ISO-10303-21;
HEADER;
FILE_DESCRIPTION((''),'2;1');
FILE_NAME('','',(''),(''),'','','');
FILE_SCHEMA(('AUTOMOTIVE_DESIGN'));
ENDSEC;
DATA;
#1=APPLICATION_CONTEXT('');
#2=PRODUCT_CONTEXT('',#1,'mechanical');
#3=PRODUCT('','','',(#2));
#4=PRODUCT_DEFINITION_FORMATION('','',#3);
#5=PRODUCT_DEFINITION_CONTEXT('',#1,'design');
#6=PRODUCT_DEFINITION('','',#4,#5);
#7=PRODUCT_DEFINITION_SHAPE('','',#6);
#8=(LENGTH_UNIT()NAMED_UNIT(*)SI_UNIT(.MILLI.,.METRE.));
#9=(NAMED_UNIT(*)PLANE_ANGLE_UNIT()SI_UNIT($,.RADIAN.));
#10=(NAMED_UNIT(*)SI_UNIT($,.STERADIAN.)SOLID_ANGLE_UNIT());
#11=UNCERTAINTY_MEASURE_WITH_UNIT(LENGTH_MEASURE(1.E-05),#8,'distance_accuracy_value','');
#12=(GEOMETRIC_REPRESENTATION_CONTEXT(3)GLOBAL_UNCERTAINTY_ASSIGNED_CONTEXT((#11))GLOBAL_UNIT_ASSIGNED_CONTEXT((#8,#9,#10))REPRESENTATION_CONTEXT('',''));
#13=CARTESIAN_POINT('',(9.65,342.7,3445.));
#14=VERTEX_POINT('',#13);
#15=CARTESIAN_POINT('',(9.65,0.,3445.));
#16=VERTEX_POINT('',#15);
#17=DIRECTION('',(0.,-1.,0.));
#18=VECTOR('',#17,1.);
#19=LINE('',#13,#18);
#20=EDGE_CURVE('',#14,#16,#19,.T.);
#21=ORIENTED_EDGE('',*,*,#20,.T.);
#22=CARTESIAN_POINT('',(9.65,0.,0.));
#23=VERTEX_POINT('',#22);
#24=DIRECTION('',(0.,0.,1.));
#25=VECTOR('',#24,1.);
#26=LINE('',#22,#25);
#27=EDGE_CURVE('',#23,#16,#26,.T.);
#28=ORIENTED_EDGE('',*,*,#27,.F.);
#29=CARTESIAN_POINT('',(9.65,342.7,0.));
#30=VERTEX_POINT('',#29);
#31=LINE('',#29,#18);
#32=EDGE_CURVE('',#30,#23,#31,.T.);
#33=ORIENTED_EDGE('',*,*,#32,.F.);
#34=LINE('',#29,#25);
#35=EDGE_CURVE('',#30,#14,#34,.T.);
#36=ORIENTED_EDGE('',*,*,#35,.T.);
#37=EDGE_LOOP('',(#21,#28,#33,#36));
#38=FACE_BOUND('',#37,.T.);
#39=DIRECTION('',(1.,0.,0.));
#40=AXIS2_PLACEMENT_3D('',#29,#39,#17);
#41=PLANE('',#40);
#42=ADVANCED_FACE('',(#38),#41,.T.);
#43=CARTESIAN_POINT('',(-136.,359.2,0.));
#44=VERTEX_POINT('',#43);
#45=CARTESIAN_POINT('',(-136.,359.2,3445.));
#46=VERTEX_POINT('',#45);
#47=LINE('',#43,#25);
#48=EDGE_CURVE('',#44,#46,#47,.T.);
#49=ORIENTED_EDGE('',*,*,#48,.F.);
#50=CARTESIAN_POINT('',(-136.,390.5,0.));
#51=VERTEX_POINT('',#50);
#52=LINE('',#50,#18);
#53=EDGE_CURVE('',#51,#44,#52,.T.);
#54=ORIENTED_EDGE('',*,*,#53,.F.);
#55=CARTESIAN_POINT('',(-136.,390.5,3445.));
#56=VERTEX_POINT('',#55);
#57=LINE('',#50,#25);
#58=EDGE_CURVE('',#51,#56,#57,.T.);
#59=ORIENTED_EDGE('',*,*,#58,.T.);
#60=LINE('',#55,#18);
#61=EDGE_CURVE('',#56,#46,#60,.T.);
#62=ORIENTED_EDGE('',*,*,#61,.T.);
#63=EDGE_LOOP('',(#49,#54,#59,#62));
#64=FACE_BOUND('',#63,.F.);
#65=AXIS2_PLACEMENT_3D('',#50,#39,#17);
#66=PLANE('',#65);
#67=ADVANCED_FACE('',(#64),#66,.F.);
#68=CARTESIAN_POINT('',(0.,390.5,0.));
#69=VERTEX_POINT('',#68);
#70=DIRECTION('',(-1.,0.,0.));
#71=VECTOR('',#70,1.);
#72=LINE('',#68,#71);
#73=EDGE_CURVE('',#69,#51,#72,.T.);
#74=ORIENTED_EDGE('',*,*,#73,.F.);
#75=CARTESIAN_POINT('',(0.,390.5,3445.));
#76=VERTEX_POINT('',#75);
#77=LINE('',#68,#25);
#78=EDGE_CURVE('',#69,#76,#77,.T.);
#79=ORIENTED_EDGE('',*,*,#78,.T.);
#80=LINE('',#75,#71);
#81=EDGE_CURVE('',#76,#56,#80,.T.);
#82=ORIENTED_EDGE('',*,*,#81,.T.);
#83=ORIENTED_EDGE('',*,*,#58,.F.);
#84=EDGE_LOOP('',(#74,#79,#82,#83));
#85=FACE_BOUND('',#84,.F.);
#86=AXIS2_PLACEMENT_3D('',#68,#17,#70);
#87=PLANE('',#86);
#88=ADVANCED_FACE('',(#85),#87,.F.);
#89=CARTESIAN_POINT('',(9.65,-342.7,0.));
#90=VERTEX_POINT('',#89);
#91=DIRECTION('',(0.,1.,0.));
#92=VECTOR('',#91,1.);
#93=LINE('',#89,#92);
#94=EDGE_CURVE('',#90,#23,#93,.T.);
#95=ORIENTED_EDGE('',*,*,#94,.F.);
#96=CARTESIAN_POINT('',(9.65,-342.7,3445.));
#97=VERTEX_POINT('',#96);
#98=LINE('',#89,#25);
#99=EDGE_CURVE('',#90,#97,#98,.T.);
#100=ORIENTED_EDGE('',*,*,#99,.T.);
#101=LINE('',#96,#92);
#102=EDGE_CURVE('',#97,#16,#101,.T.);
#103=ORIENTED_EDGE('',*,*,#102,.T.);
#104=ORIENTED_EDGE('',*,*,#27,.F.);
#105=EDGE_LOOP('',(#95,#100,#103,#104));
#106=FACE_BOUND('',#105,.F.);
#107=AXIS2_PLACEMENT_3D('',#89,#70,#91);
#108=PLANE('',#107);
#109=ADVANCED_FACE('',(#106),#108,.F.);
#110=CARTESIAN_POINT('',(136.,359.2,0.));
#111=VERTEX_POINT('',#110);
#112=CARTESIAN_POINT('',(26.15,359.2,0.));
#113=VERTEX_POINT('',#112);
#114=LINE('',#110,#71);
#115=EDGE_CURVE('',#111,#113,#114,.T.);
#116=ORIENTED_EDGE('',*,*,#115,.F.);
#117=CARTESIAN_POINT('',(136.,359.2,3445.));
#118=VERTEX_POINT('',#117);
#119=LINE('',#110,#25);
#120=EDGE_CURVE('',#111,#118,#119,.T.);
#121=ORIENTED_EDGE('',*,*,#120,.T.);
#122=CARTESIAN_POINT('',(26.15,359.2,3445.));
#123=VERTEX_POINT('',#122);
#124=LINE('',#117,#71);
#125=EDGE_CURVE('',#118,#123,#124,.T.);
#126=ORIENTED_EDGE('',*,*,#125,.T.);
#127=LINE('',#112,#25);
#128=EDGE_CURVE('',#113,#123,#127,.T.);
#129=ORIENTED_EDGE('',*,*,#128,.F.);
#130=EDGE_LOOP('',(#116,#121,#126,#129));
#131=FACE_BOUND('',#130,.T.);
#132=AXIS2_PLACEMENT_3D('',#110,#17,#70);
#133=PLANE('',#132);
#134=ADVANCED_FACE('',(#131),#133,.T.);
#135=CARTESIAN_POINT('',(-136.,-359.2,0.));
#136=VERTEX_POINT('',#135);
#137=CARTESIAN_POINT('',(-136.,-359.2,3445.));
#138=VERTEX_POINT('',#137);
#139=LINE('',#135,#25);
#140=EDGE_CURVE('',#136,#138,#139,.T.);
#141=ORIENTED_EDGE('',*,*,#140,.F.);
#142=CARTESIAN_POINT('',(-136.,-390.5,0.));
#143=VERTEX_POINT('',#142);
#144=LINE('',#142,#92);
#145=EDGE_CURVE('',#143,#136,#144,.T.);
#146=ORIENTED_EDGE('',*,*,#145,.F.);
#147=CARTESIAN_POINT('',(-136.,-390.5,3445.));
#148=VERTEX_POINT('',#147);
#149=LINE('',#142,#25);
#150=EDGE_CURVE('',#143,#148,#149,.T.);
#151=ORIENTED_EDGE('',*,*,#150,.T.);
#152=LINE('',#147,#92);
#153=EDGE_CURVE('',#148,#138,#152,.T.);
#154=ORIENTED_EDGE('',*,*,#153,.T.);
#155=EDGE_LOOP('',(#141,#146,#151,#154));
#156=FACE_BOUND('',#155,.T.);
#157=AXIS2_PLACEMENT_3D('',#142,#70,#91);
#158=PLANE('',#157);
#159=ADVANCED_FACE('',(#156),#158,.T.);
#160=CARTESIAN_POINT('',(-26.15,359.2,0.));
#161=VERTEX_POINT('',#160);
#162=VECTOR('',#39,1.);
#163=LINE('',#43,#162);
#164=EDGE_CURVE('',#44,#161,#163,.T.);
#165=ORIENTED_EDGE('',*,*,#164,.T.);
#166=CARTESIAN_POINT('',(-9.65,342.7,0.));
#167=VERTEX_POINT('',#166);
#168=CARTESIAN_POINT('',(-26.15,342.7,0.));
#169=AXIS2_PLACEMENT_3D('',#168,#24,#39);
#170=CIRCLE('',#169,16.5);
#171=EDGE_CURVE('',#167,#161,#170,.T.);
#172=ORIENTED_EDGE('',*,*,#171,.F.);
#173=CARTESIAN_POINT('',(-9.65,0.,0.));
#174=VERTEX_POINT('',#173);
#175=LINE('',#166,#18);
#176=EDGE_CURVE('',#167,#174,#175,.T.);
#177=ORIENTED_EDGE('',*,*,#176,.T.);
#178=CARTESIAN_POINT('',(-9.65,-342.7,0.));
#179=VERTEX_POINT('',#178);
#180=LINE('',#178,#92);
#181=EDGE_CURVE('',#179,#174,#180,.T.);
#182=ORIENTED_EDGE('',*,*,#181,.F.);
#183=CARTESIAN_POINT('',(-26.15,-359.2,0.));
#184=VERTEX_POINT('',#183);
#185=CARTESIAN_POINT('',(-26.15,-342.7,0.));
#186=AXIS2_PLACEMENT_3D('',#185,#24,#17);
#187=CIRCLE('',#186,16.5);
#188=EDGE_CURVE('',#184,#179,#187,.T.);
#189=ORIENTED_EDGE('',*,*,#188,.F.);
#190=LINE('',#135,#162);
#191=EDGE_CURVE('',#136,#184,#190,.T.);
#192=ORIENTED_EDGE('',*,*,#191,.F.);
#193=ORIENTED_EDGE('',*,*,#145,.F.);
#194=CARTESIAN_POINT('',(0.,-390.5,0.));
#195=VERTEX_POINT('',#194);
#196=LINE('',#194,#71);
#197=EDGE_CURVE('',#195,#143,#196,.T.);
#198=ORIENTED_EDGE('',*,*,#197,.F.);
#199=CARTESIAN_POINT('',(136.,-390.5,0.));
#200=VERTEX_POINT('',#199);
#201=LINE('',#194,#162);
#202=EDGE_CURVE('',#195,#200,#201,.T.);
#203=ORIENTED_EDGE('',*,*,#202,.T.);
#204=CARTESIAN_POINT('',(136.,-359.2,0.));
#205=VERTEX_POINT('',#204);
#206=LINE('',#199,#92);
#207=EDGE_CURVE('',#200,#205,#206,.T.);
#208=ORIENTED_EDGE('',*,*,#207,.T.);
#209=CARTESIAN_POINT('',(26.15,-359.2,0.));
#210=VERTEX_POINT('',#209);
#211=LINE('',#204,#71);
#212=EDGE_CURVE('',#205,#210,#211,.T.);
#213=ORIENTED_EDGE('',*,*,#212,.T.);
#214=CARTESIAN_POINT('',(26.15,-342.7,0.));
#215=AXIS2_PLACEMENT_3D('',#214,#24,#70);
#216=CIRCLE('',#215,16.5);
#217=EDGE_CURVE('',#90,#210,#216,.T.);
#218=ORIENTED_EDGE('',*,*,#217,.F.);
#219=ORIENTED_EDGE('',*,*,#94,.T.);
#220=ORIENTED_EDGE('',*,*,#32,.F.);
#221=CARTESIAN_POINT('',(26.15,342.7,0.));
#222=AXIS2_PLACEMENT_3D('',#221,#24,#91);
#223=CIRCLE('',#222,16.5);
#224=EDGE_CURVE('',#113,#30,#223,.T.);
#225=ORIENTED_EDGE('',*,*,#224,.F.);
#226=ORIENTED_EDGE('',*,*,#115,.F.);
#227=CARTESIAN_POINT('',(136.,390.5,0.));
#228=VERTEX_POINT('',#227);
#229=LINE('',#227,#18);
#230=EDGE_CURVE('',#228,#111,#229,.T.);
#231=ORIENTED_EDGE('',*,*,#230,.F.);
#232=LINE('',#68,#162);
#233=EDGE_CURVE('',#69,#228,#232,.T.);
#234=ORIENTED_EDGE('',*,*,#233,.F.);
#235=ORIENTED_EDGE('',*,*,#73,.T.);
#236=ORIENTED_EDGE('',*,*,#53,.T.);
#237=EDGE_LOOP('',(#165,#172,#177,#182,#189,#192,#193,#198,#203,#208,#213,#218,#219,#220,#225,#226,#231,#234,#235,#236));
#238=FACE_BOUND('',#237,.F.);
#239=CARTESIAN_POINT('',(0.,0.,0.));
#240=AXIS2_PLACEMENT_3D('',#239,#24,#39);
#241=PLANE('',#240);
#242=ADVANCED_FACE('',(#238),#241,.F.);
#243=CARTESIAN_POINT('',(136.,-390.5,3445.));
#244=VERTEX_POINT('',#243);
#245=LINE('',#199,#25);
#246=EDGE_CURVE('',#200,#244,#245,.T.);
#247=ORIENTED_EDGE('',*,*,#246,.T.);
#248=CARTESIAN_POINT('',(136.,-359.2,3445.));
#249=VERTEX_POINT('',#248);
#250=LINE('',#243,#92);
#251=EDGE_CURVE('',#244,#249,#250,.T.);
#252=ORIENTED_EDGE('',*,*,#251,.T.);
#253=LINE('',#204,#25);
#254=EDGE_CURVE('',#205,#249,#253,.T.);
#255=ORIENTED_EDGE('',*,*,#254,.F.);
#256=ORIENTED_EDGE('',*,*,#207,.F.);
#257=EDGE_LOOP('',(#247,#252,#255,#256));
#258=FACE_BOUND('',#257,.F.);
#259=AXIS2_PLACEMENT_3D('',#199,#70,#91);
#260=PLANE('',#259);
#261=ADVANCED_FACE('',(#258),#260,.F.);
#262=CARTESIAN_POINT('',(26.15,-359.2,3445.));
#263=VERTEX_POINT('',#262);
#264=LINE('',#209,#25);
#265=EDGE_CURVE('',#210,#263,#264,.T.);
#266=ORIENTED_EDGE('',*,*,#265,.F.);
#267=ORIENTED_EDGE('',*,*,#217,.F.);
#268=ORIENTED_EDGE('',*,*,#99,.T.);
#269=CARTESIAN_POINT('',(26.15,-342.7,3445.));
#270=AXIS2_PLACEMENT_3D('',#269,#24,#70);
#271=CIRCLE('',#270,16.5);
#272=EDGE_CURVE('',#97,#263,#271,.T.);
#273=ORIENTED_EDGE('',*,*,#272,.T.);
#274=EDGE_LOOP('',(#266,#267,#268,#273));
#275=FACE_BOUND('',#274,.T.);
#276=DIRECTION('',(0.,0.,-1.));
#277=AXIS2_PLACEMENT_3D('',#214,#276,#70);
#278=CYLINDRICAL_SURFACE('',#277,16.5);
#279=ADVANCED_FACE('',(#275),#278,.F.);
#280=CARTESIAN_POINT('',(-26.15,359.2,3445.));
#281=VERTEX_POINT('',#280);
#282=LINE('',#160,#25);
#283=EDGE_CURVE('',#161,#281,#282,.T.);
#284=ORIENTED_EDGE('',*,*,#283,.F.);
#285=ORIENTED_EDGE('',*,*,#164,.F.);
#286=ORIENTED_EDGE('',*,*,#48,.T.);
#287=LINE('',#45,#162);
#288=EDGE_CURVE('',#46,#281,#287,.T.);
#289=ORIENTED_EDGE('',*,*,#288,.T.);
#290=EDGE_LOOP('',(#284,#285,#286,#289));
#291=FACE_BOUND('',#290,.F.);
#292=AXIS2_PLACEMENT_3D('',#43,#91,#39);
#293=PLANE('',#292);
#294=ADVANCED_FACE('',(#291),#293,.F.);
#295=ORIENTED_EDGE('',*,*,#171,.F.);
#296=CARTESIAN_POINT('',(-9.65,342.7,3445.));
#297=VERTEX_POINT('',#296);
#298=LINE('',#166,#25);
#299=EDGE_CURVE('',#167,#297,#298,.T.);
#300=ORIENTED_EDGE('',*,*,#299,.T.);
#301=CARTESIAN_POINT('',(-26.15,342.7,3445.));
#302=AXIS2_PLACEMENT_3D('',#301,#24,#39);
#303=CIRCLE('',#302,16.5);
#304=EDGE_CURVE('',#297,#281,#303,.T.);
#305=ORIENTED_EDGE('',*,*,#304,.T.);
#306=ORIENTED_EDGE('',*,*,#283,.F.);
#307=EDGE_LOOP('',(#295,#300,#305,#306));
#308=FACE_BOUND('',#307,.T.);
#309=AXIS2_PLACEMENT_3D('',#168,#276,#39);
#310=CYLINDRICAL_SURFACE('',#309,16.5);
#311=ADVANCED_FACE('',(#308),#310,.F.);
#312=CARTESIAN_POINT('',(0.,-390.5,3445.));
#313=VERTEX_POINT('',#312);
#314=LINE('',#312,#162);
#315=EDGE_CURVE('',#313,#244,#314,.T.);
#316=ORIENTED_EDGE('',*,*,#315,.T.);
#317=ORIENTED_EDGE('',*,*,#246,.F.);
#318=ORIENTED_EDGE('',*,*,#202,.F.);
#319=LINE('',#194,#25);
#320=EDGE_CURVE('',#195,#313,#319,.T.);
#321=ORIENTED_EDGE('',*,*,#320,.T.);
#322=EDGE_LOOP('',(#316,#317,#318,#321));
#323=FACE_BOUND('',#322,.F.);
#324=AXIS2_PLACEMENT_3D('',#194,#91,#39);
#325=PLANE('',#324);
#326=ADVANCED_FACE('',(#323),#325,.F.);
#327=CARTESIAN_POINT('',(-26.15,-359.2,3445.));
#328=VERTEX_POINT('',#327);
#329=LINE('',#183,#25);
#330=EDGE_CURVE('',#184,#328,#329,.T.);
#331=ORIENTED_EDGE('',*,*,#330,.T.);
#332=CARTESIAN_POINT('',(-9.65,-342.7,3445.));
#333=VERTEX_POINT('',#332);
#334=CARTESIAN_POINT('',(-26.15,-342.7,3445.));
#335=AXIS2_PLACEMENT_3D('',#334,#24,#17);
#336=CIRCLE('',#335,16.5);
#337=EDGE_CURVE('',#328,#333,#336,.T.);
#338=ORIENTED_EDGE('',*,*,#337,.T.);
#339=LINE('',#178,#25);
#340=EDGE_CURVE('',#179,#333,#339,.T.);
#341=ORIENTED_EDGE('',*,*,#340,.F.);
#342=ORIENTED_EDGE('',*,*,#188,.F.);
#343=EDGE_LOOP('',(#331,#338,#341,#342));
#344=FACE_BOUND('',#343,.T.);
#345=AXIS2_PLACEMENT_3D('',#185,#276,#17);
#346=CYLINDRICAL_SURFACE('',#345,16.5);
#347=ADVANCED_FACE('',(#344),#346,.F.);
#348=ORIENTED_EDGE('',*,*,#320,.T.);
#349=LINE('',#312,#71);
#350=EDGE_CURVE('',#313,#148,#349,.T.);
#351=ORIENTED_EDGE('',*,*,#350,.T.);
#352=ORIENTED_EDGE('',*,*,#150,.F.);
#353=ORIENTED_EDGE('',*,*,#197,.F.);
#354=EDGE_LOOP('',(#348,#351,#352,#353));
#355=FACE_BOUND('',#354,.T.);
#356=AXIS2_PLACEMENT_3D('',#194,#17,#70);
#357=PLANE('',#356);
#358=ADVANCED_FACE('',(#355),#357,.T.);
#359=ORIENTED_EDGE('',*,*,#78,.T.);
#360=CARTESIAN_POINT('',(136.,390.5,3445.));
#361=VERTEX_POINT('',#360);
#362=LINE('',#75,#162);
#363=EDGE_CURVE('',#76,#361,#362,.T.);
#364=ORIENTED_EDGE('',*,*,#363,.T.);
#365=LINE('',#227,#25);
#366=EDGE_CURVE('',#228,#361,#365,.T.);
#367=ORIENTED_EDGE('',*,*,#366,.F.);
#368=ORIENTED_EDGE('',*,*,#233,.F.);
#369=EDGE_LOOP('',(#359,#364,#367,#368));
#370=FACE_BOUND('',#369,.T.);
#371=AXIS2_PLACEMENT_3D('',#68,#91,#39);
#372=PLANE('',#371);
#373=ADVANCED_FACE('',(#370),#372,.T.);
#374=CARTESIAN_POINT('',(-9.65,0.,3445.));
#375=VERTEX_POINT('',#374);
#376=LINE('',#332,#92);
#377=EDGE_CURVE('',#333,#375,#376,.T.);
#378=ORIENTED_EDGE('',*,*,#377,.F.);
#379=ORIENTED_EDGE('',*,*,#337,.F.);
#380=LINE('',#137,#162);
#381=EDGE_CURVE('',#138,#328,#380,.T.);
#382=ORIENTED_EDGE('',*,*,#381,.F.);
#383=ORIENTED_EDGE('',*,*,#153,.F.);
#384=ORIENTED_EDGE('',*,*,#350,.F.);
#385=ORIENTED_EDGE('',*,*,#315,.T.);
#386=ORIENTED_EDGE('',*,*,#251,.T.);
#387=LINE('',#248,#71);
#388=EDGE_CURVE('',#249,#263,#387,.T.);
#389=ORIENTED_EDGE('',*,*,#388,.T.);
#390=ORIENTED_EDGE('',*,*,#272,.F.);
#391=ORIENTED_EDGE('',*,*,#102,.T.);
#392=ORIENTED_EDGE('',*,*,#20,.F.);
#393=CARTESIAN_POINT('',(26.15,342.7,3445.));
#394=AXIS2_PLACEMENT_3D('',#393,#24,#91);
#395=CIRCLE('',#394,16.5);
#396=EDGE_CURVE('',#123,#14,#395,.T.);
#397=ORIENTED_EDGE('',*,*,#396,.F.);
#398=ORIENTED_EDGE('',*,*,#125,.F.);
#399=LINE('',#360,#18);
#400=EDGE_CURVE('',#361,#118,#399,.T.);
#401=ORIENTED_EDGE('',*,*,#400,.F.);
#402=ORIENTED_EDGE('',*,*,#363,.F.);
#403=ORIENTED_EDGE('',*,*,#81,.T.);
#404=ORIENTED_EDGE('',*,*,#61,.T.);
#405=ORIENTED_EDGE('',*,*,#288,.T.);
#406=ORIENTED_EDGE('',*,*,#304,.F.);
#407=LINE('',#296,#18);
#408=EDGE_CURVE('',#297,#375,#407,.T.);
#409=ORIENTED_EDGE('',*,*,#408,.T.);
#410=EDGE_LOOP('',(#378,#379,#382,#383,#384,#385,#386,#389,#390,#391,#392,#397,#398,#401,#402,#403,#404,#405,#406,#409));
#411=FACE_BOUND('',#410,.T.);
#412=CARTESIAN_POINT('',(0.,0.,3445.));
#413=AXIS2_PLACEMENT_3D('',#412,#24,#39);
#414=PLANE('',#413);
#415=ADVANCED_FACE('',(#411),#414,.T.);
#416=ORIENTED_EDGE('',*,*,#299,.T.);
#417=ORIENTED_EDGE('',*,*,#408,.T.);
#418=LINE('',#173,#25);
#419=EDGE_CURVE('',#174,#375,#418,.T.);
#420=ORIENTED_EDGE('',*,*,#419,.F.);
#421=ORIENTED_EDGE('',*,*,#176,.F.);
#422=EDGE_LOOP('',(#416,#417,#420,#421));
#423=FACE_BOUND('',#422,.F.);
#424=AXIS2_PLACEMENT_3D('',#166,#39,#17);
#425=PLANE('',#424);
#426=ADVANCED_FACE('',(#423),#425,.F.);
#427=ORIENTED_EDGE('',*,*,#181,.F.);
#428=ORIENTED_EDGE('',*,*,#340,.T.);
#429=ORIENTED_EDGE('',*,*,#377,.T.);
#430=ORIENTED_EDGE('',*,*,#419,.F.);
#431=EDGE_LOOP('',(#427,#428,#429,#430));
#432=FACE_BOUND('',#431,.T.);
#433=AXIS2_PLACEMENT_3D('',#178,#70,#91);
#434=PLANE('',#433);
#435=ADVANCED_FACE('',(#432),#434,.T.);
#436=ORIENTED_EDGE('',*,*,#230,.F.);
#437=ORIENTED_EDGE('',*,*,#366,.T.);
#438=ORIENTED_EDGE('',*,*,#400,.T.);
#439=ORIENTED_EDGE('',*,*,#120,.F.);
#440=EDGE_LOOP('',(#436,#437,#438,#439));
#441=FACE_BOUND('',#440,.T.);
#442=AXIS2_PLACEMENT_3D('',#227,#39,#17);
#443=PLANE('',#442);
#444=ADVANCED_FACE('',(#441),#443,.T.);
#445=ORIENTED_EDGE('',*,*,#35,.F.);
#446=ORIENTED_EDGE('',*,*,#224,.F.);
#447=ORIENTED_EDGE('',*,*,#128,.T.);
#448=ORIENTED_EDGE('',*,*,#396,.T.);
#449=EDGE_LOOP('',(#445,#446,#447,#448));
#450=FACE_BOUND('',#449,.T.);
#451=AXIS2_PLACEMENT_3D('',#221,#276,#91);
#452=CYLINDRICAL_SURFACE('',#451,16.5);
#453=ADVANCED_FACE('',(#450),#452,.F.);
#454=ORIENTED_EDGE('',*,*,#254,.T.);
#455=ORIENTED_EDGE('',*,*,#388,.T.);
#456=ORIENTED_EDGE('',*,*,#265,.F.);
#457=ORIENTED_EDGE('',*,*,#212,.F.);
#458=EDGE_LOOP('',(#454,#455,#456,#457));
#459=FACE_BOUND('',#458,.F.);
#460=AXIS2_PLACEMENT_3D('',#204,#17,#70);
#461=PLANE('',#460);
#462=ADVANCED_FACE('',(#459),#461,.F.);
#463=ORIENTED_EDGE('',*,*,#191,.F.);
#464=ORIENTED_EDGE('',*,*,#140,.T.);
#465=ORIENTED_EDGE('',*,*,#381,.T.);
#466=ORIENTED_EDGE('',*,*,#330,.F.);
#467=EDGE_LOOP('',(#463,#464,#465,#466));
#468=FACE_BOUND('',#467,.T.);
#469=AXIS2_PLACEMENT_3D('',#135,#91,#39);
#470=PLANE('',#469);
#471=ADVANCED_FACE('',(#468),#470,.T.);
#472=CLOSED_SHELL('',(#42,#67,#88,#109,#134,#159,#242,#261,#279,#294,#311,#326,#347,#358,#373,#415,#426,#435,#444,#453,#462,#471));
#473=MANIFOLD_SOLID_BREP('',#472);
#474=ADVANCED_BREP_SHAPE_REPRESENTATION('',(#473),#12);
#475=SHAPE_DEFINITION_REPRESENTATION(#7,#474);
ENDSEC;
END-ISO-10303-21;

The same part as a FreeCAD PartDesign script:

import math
import FreeCAD as App
import Part
import Sketcher

V = App.Vector
Q = App.Units.Quantity

doc = App.newDocument("Part")
body = doc.addObject("PartDesign::Body", "Body")

# Sketch on XY plane
sketch1 = doc.addObject("Sketcher::SketchObject", "Sketch")
body.addObject(sketch1)
sketch1.AttachmentSupport = (doc.XY_Plane, [""])
sketch1.MapMode = "FlatFace"
sketch1.addGeometry(Part.LineSegment(V(-136, -359, 0), V(-136, -390, 0)), False)
sketch1.addGeometry(Part.LineSegment(V(-136, -390, 0), V(136, -390, 0)), False)
sketch1.addGeometry(Part.LineSegment(V(136, -390, 0), V(136, -359, 0)), False)
sketch1.addGeometry(Part.LineSegment(V(136, -359, 0), V(26, -359, 0)), False)
sketch1.addGeometry(Part.ArcOfCircle(Part.Circle(V(26, -343, 0), V(0, 0, 1), 16), math.radians(180), math.radians(270)), False)
sketch1.addGeometry(Part.LineSegment(V(10, -343, 0), V(10, 343, 0)), False)
sketch1.addGeometry(Part.ArcOfCircle(Part.Circle(V(26, 343, 0), V(0, 0, 1), 16), math.radians(90), math.radians(180)), False)
sketch1.addGeometry(Part.LineSegment(V(26, 359, 0), V(136, 359, 0)), False)
sketch1.addGeometry(Part.LineSegment(V(136, 359, 0), V(136, 390, 0)), False)
sketch1.addGeometry(Part.LineSegment(V(136, 390, 0), V(-136, 390, 0)), False)
sketch1.addGeometry(Part.LineSegment(V(-136, 390, 0), V(-136, 359, 0)), False)
sketch1.addGeometry(Part.LineSegment(V(-136, 359, 0), V(-26, 359, 0)), False)
sketch1.addGeometry(Part.ArcOfCircle(Part.Circle(V(-26, 343, 0), V(0, 0, 1), 16), math.radians(0), math.radians(90)), False)
sketch1.addGeometry(Part.LineSegment(V(-10, 343, 0), V(-10, -343, 0)), False)
sketch1.addGeometry(Part.ArcOfCircle(Part.Circle(V(-26, -343, 0), V(0, 0, 1), 16), math.radians(-90), math.radians(0)), False)
sketch1.addGeometry(Part.LineSegment(V(-26, -359, 0), V(-136, -359, 0)), False)
sketch1.addConstraint(Sketcher.Constraint("Coincident", 0, 2, 1, 1))
sketch1.addConstraint(Sketcher.Constraint("Coincident", 1, 2, 2, 1))
sketch1.addConstraint(Sketcher.Constraint("Coincident", 2, 2, 3, 1))
sketch1.addConstraint(Sketcher.Constraint("Tangent", 3, 2, 4, 2))
sketch1.addConstraint(Sketcher.Constraint("Tangent", 4, 1, 5, 1))
sketch1.addConstraint(Sketcher.Constraint("Tangent", 5, 2, 6, 2))
sketch1.addConstraint(Sketcher.Constraint("Tangent", 6, 1, 7, 1))
sketch1.addConstraint(Sketcher.Constraint("Coincident", 7, 2, 8, 1))
sketch1.addConstraint(Sketcher.Constraint("Coincident", 8, 2, 9, 1))
sketch1.addConstraint(Sketcher.Constraint("Coincident", 9, 2, 10, 1))
sketch1.addConstraint(Sketcher.Constraint("Coincident", 10, 2, 11, 1))
sketch1.addConstraint(Sketcher.Constraint("Tangent", 11, 2, 12, 2))
sketch1.addConstraint(Sketcher.Constraint("Tangent", 12, 1, 13, 1))
sketch1.addConstraint(Sketcher.Constraint("Tangent", 13, 2, 14, 2))
sketch1.addConstraint(Sketcher.Constraint("Tangent", 14, 1, 15, 1))
sketch1.addConstraint(Sketcher.Constraint("Coincident", 15, 2, 0, 1))
sketch1.addConstraint(Sketcher.Constraint("Vertical", 0))
sketch1.addConstraint(Sketcher.Constraint("Horizontal", 1))
sketch1.addConstraint(Sketcher.Constraint("Vertical", 2))
sketch1.addConstraint(Sketcher.Constraint("Horizontal", 3))
sketch1.addConstraint(Sketcher.Constraint("Vertical", 5))
sketch1.addConstraint(Sketcher.Constraint("Horizontal", 7))
sketch1.addConstraint(Sketcher.Constraint("Vertical", 8))
sketch1.addConstraint(Sketcher.Constraint("Horizontal", 9))
sketch1.addConstraint(Sketcher.Constraint("Vertical", 10))
sketch1.addConstraint(Sketcher.Constraint("Horizontal", 11))
sketch1.addConstraint(Sketcher.Constraint("Vertical", 13))
sketch1.addConstraint(Sketcher.Constraint("Horizontal", 15))
sketch1.addConstraint(Sketcher.Constraint("Equal", 4, 6))
sketch1.addConstraint(Sketcher.Constraint("Equal", 6, 12))
sketch1.addConstraint(Sketcher.Constraint("Equal", 12, 14))
sketch1.addConstraint(Sketcher.Constraint("Symmetric", 4, 3, 12, 3, -1, 1))
sketch1.addConstraint(Sketcher.Constraint("Symmetric", 0, 2, 8, 2, -1, 1))
sketch1.addConstraint(Sketcher.Constraint("Symmetric", 7, 2, 10, 2, -2))
sketch1.addConstraint(Sketcher.Constraint("Symmetric", 2, 2, 15, 2, -2))
sketch1.addConstraint(Sketcher.Constraint("Radius", 4, Q("16.5 mm")))
sketch1.addConstraint(Sketcher.Constraint("DistanceY", 0, 2, 0, 1, Q("31.3 mm")))
sketch1.addConstraint(Sketcher.Constraint("DistanceX", 0, 2, -1, 1, Q("136 mm")))
sketch1.addConstraint(Sketcher.Constraint("DistanceY", 0, 2, -1, 1, Q("390.5 mm")))
sketch1.addConstraint(Sketcher.Constraint("DistanceX", -1, 1, 4, 1, Q("9.65 mm")))
pad1 = doc.addObject("PartDesign::Pad", "Pad")
body.addObject(pad1)
pad1.Profile = sketch1
pad1.Length = 3445

doc.recompute()
